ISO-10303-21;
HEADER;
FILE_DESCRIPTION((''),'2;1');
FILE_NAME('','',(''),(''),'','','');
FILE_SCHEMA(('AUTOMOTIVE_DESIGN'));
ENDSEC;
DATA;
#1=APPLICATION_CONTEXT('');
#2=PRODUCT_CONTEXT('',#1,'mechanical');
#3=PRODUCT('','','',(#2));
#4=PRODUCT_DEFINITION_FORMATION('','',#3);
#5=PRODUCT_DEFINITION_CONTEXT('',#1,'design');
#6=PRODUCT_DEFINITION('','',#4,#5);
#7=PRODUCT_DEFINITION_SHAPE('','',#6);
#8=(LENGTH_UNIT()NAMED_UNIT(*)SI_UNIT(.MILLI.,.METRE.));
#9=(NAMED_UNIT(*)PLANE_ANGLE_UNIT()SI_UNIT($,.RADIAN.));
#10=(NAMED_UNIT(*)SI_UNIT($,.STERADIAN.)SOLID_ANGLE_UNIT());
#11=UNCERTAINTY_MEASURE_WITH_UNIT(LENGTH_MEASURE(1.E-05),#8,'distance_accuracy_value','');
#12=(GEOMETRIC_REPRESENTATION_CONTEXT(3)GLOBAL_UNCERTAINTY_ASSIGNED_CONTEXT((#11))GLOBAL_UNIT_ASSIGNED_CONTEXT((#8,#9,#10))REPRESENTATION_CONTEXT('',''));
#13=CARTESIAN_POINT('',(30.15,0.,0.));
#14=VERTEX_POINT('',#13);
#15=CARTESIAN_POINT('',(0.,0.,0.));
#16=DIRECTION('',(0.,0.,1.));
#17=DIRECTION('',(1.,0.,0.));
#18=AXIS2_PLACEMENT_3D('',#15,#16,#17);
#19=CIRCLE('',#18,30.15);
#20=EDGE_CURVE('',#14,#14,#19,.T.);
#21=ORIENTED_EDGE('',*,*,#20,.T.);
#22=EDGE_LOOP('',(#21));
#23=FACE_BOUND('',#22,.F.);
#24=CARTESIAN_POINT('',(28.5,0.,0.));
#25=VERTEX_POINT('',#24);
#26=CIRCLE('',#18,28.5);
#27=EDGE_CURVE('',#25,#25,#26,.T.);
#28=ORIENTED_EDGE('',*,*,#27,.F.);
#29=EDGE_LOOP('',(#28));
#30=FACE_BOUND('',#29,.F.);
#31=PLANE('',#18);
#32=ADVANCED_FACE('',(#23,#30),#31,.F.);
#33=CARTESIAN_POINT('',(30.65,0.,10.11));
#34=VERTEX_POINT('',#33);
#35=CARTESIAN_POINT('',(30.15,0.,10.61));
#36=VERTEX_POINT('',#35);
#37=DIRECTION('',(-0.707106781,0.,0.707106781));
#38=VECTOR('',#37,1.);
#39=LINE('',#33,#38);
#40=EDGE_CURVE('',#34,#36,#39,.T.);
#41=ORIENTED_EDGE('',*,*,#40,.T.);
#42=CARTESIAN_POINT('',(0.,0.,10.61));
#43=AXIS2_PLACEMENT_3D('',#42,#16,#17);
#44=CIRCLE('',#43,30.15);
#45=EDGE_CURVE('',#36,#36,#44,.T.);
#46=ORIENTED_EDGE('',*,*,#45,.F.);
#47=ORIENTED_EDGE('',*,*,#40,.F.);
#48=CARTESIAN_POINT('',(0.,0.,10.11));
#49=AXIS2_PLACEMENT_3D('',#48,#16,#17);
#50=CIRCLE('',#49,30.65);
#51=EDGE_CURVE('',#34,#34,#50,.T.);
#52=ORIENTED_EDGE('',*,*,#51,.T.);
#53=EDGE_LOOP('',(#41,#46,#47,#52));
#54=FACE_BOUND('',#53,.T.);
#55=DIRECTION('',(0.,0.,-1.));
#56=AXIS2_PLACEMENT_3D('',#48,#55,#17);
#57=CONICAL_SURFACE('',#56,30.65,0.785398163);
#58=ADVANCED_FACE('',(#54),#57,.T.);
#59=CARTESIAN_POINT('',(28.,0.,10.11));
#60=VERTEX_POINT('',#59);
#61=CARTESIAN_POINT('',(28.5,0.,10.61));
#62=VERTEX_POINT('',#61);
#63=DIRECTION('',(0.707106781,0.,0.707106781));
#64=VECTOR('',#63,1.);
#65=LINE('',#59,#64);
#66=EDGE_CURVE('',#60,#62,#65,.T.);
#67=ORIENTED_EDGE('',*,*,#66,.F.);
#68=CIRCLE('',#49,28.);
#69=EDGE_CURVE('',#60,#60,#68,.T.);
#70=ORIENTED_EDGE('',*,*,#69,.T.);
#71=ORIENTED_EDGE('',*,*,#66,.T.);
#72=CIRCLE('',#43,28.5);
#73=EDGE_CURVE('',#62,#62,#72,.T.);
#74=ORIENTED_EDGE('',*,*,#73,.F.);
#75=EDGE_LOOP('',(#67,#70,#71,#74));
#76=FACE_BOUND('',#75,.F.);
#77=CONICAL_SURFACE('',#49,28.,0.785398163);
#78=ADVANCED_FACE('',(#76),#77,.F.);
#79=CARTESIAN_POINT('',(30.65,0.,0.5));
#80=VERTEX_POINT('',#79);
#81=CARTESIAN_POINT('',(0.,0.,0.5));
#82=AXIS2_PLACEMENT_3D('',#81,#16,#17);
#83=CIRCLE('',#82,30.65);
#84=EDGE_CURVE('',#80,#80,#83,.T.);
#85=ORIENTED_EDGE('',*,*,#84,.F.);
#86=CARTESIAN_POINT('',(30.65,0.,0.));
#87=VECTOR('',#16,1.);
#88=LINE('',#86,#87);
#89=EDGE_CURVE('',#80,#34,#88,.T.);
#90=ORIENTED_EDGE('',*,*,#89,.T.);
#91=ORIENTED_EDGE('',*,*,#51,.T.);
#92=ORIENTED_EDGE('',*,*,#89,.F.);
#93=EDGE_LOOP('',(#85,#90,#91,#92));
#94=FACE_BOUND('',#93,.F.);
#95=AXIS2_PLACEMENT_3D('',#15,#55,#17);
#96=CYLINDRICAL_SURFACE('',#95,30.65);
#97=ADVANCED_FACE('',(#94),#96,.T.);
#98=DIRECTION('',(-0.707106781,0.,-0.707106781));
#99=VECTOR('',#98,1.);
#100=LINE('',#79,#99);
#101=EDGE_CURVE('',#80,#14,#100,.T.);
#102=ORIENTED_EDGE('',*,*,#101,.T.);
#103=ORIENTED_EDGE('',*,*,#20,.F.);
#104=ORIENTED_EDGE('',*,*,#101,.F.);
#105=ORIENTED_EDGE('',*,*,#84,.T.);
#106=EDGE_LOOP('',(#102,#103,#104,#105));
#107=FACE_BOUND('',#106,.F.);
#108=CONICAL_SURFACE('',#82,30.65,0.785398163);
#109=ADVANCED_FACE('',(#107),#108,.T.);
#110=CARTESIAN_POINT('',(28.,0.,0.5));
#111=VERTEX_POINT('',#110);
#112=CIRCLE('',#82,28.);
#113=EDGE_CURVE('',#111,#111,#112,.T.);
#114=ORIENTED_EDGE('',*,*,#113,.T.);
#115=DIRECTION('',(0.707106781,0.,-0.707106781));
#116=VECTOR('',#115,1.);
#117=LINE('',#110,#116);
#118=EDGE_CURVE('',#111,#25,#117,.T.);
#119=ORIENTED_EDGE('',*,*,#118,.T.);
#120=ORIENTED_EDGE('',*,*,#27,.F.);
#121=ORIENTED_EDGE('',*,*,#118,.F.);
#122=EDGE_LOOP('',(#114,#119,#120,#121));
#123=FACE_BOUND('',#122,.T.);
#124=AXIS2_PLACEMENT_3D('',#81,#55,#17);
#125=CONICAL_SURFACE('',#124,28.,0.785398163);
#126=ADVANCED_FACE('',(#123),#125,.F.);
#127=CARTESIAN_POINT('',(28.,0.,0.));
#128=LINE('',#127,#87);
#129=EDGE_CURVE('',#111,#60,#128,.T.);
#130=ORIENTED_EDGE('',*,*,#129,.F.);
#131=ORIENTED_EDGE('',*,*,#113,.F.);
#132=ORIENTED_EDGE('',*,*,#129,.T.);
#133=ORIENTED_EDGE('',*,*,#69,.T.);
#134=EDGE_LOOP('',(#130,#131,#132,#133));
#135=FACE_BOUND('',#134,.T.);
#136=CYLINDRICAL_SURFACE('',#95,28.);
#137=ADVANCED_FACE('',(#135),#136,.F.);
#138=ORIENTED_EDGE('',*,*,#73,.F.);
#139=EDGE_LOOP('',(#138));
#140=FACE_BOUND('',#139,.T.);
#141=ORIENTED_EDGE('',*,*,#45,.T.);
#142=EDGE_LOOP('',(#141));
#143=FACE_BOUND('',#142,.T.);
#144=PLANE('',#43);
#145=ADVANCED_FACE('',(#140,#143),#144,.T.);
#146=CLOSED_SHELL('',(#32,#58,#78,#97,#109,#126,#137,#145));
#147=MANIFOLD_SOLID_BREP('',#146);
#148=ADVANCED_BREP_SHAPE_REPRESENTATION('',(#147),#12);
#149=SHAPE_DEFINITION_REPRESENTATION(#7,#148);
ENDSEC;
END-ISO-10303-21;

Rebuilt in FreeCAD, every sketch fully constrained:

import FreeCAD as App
import Part
import Sketcher
from FreeCAD import Vector
Q = App.Units.Quantity


def edges_at(feature, points):
    """Names of the edges that pass closest to the given points."""
    edges = feature.Shape.Edges
    near = lambda p: min(range(len(edges)), key=lambda i: edges[i].distToShape(Part.Vertex(*p))[0])
    return sorted({f"Edge{near(p) + 1}" for p in points})

doc = App.newDocument("Part")
params = doc.addObject("Spreadsheet::Sheet", "Params")
for row, (alias, value) in enumerate([
    ("sketch1_diameter", "56 mm"),
    ("sketch1_diameter2", "61.3 mm"),
    ("pad1_length", "10.61 mm"),
    ("chamfer_size", "0.5 mm"),
], start=1):
    params.set(f"A{row}", alias)
    params.set(f"B{row}", "=" + value)
    params.setAlias(f"B{row}", alias)

body = doc.addObject("PartDesign::Body", "Body")

# Sketch on XY plane
sketch1 = body.newObject("Sketcher::SketchObject", "Sketch")
sketch1.AttachmentSupport = (doc.getObject("XY_Plane"), [""])
sketch1.MapMode = "FlatFace"
sketch1.addGeometry([
    Part.Circle(Vector(0, 0, 0), Vector(0, 0, 1), 31),
    Part.Circle(Vector(0, 0, 0), Vector(0, 0, 1), 28),
], False)
sketch1.addConstraint([
    Sketcher.Constraint("Coincident", 0, 3, -1, 1),
    Sketcher.Constraint("Coincident", 1, 3, -1, 1),
    Sketcher.Constraint("Diameter", 1, Q("56 mm")),
    Sketcher.Constraint("Diameter", 0, Q("61.3 mm")),
])
sketch1.setExpression("Constraints[2]", "Params.sketch1_diameter")
sketch1.setExpression("Constraints[3]", "Params.sketch1_diameter2")
pad1 = body.newObject("PartDesign::Pad", "Pad")
pad1.Profile = sketch1
pad1.setExpression("Length", "Params.pad1_length")
doc.recompute()

chamfer = body.newObject("PartDesign::Chamfer", "Chamfer")
chamfer.Base = (pad1, edges_at(pad1, [
    (-28, 0, 10.61),
    (-28, 0, 0),
    (-30.65, 0, 10.61),
    (-30.65, 0, 0),
]))
chamfer.setExpression("Size", "Params.chamfer_size")

doc.recompute()
